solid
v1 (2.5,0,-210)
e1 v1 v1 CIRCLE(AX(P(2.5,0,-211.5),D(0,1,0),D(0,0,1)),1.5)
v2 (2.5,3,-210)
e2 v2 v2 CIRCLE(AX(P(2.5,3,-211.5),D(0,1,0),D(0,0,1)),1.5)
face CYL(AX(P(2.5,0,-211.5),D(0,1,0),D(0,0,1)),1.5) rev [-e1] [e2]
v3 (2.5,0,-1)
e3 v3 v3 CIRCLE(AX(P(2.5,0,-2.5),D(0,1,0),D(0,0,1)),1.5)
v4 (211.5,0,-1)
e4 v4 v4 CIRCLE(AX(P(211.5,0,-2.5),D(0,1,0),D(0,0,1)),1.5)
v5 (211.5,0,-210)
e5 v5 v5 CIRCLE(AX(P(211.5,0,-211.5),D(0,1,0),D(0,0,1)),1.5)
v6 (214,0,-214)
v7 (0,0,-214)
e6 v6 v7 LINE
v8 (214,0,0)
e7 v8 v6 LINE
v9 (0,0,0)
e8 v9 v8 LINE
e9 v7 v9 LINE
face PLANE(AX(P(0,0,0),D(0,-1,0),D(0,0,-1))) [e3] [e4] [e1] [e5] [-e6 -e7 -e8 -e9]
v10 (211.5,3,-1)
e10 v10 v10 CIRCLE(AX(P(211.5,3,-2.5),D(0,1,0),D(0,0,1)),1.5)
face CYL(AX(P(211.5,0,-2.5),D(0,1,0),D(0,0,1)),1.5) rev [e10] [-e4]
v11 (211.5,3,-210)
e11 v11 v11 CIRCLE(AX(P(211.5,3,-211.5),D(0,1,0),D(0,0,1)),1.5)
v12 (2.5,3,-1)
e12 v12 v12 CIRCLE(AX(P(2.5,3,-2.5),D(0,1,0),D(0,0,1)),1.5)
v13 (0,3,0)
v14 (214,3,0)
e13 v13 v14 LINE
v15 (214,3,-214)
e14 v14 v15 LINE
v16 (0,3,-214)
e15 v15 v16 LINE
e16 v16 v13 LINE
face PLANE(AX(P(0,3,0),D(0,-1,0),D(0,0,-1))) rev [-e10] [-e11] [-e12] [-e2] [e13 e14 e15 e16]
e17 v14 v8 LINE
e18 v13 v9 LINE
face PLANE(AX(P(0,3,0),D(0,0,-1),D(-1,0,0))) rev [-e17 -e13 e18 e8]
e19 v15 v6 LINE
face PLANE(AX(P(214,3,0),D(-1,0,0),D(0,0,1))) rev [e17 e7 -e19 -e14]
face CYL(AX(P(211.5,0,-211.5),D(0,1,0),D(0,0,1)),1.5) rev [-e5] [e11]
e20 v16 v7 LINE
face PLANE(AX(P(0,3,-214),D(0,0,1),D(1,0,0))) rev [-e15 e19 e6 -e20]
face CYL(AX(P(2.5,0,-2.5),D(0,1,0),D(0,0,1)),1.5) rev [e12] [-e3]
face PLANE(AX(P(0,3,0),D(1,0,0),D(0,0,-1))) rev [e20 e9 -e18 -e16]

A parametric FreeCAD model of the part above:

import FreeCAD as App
import Part
import Sketcher

doc = App.newDocument("Part")
body = doc.addObject("PartDesign::Body", "Body")

sketch1 = body.newObject("Sketcher::SketchObject", "Sketch")
sketch1.AttachmentSupport = (doc.getObject("XZ_Plane"), [""])
sketch1.MapMode = "FlatFace"
sketch1.addGeometry(Part.LineSegment(App.Vector(0, -214, 0), App.Vector(0, 0, 0)), False)
sketch1.addGeometry(Part.LineSegment(App.Vector(0, 0, 0), App.Vector(214, 0, 0)), False)
sketch1.addGeometry(Part.LineSegment(App.Vector(214, 0, 0), App.Vector(214, -214, 0)), False)
sketch1.addGeometry(Part.LineSegment(App.Vector(214, -214, 0), App.Vector(0, -214, 0)), False)
sketch1.addConstraint(Sketcher.Constraint("Coincident", 0, 2, 1, 1))
sketch1.addConstraint(Sketcher.Constraint("Coincident", 1, 2, 2, 1))
sketch1.addConstraint(Sketcher.Constraint("Coincident", 2, 2, 3, 1))
sketch1.addConstraint(Sketcher.Constraint("Coincident", 3, 2, 0, 1))
sketch1.addConstraint(Sketcher.Constraint("Vertical", 0))
sketch1.addConstraint(Sketcher.Constraint("Horizontal", 1))
sketch1.addConstraint(Sketcher.Constraint("Vertical", 2))
sketch1.addConstraint(Sketcher.Constraint("Horizontal", 3))
sketch1.addConstraint(Sketcher.Constraint("Coincident", 0, 2, -1, 1))
sketch1.addConstraint(Sketcher.Constraint("Equal", 3, 0))
sketch1.addConstraint(Sketcher.Constraint("DistanceX", 1, 1, 1, 2, 214.0))
pad1 = body.newObject("PartDesign::Pad", "Pad")
pad1.Profile = sketch1
pad1.Length = 3
pad1.Reversed = True

sketch2 = body.newObject("Sketcher::SketchObject", "Sketch001")
sketch2.AttachmentSupport = (doc.getObject("XZ_Plane"), [""])
sketch2.MapMode = "FlatFace"
sketch2.AttachmentOffset = App.Placement(App.Vector(0, 0, -3), App.Rotation())
sketch2.addGeometry(Part.Circle(App.Vector(2.5, -211.5, 0), App.Vector(0, 0, 1), 1.5), False)
sketch2.addGeometry(Part.Circle(App.Vector(2.5, -2.5, 0), App.Vector(0, 0, 1), 1.5), False)
sketch2.addGeometry(Part.Circle(App.Vector(211.5, -2.5, 0), App.Vector(0, 0, 1), 1.5), False)
sketch2.addGeometry(Part.Circle(App.Vector(211.5, -211.5, 0), App.Vector(0, 0, 1), 1.5), False)
sketch2.addConstraint(Sketcher.Constraint("Equal", 0, 1))
sketch2.addConstraint(Sketcher.Constraint("Equal", 1, 2))
sketch2.addConstraint(Sketcher.Constraint("Equal", 2, 3))
sketch2.addConstraint(Sketcher.Constraint("Horizontal", 1, 3, 2, 3))
sketch2.addConstraint(Sketcher.Constraint("Horizontal", 0, 3, 3, 3))
sketch2.addConstraint(Sketcher.Constraint("Vertical", 0, 3, 1, 3))
sketch2.addConstraint(Sketcher.Constraint("Vertical", 2, 3, 3, 3))
sketch2.addConstraint(Sketcher.Constraint("Diameter", 0, 3.0))
sketch2.addConstraint(Sketcher.Constraint("DistanceY", 0, 3, 1, 3, 209.0))
sketch2.addConstraint(Sketcher.Constraint("DistanceX", 1, 3, 2, 3, 209.0))
sketch2.addConstraint(Sketcher.Constraint("DistanceX", -1, 1, 0, 3, 2.5))
sketch2.addConstraint(Sketcher.Constraint("DistanceY", 0, 3, -1, 1, 211.5))
pocket1 = body.newObject("PartDesign::Pocket", "Pocket")
pocket1.Profile = sketch2
pocket1.Length = 3
pocket1.Reversed = True

doc.recompute()
